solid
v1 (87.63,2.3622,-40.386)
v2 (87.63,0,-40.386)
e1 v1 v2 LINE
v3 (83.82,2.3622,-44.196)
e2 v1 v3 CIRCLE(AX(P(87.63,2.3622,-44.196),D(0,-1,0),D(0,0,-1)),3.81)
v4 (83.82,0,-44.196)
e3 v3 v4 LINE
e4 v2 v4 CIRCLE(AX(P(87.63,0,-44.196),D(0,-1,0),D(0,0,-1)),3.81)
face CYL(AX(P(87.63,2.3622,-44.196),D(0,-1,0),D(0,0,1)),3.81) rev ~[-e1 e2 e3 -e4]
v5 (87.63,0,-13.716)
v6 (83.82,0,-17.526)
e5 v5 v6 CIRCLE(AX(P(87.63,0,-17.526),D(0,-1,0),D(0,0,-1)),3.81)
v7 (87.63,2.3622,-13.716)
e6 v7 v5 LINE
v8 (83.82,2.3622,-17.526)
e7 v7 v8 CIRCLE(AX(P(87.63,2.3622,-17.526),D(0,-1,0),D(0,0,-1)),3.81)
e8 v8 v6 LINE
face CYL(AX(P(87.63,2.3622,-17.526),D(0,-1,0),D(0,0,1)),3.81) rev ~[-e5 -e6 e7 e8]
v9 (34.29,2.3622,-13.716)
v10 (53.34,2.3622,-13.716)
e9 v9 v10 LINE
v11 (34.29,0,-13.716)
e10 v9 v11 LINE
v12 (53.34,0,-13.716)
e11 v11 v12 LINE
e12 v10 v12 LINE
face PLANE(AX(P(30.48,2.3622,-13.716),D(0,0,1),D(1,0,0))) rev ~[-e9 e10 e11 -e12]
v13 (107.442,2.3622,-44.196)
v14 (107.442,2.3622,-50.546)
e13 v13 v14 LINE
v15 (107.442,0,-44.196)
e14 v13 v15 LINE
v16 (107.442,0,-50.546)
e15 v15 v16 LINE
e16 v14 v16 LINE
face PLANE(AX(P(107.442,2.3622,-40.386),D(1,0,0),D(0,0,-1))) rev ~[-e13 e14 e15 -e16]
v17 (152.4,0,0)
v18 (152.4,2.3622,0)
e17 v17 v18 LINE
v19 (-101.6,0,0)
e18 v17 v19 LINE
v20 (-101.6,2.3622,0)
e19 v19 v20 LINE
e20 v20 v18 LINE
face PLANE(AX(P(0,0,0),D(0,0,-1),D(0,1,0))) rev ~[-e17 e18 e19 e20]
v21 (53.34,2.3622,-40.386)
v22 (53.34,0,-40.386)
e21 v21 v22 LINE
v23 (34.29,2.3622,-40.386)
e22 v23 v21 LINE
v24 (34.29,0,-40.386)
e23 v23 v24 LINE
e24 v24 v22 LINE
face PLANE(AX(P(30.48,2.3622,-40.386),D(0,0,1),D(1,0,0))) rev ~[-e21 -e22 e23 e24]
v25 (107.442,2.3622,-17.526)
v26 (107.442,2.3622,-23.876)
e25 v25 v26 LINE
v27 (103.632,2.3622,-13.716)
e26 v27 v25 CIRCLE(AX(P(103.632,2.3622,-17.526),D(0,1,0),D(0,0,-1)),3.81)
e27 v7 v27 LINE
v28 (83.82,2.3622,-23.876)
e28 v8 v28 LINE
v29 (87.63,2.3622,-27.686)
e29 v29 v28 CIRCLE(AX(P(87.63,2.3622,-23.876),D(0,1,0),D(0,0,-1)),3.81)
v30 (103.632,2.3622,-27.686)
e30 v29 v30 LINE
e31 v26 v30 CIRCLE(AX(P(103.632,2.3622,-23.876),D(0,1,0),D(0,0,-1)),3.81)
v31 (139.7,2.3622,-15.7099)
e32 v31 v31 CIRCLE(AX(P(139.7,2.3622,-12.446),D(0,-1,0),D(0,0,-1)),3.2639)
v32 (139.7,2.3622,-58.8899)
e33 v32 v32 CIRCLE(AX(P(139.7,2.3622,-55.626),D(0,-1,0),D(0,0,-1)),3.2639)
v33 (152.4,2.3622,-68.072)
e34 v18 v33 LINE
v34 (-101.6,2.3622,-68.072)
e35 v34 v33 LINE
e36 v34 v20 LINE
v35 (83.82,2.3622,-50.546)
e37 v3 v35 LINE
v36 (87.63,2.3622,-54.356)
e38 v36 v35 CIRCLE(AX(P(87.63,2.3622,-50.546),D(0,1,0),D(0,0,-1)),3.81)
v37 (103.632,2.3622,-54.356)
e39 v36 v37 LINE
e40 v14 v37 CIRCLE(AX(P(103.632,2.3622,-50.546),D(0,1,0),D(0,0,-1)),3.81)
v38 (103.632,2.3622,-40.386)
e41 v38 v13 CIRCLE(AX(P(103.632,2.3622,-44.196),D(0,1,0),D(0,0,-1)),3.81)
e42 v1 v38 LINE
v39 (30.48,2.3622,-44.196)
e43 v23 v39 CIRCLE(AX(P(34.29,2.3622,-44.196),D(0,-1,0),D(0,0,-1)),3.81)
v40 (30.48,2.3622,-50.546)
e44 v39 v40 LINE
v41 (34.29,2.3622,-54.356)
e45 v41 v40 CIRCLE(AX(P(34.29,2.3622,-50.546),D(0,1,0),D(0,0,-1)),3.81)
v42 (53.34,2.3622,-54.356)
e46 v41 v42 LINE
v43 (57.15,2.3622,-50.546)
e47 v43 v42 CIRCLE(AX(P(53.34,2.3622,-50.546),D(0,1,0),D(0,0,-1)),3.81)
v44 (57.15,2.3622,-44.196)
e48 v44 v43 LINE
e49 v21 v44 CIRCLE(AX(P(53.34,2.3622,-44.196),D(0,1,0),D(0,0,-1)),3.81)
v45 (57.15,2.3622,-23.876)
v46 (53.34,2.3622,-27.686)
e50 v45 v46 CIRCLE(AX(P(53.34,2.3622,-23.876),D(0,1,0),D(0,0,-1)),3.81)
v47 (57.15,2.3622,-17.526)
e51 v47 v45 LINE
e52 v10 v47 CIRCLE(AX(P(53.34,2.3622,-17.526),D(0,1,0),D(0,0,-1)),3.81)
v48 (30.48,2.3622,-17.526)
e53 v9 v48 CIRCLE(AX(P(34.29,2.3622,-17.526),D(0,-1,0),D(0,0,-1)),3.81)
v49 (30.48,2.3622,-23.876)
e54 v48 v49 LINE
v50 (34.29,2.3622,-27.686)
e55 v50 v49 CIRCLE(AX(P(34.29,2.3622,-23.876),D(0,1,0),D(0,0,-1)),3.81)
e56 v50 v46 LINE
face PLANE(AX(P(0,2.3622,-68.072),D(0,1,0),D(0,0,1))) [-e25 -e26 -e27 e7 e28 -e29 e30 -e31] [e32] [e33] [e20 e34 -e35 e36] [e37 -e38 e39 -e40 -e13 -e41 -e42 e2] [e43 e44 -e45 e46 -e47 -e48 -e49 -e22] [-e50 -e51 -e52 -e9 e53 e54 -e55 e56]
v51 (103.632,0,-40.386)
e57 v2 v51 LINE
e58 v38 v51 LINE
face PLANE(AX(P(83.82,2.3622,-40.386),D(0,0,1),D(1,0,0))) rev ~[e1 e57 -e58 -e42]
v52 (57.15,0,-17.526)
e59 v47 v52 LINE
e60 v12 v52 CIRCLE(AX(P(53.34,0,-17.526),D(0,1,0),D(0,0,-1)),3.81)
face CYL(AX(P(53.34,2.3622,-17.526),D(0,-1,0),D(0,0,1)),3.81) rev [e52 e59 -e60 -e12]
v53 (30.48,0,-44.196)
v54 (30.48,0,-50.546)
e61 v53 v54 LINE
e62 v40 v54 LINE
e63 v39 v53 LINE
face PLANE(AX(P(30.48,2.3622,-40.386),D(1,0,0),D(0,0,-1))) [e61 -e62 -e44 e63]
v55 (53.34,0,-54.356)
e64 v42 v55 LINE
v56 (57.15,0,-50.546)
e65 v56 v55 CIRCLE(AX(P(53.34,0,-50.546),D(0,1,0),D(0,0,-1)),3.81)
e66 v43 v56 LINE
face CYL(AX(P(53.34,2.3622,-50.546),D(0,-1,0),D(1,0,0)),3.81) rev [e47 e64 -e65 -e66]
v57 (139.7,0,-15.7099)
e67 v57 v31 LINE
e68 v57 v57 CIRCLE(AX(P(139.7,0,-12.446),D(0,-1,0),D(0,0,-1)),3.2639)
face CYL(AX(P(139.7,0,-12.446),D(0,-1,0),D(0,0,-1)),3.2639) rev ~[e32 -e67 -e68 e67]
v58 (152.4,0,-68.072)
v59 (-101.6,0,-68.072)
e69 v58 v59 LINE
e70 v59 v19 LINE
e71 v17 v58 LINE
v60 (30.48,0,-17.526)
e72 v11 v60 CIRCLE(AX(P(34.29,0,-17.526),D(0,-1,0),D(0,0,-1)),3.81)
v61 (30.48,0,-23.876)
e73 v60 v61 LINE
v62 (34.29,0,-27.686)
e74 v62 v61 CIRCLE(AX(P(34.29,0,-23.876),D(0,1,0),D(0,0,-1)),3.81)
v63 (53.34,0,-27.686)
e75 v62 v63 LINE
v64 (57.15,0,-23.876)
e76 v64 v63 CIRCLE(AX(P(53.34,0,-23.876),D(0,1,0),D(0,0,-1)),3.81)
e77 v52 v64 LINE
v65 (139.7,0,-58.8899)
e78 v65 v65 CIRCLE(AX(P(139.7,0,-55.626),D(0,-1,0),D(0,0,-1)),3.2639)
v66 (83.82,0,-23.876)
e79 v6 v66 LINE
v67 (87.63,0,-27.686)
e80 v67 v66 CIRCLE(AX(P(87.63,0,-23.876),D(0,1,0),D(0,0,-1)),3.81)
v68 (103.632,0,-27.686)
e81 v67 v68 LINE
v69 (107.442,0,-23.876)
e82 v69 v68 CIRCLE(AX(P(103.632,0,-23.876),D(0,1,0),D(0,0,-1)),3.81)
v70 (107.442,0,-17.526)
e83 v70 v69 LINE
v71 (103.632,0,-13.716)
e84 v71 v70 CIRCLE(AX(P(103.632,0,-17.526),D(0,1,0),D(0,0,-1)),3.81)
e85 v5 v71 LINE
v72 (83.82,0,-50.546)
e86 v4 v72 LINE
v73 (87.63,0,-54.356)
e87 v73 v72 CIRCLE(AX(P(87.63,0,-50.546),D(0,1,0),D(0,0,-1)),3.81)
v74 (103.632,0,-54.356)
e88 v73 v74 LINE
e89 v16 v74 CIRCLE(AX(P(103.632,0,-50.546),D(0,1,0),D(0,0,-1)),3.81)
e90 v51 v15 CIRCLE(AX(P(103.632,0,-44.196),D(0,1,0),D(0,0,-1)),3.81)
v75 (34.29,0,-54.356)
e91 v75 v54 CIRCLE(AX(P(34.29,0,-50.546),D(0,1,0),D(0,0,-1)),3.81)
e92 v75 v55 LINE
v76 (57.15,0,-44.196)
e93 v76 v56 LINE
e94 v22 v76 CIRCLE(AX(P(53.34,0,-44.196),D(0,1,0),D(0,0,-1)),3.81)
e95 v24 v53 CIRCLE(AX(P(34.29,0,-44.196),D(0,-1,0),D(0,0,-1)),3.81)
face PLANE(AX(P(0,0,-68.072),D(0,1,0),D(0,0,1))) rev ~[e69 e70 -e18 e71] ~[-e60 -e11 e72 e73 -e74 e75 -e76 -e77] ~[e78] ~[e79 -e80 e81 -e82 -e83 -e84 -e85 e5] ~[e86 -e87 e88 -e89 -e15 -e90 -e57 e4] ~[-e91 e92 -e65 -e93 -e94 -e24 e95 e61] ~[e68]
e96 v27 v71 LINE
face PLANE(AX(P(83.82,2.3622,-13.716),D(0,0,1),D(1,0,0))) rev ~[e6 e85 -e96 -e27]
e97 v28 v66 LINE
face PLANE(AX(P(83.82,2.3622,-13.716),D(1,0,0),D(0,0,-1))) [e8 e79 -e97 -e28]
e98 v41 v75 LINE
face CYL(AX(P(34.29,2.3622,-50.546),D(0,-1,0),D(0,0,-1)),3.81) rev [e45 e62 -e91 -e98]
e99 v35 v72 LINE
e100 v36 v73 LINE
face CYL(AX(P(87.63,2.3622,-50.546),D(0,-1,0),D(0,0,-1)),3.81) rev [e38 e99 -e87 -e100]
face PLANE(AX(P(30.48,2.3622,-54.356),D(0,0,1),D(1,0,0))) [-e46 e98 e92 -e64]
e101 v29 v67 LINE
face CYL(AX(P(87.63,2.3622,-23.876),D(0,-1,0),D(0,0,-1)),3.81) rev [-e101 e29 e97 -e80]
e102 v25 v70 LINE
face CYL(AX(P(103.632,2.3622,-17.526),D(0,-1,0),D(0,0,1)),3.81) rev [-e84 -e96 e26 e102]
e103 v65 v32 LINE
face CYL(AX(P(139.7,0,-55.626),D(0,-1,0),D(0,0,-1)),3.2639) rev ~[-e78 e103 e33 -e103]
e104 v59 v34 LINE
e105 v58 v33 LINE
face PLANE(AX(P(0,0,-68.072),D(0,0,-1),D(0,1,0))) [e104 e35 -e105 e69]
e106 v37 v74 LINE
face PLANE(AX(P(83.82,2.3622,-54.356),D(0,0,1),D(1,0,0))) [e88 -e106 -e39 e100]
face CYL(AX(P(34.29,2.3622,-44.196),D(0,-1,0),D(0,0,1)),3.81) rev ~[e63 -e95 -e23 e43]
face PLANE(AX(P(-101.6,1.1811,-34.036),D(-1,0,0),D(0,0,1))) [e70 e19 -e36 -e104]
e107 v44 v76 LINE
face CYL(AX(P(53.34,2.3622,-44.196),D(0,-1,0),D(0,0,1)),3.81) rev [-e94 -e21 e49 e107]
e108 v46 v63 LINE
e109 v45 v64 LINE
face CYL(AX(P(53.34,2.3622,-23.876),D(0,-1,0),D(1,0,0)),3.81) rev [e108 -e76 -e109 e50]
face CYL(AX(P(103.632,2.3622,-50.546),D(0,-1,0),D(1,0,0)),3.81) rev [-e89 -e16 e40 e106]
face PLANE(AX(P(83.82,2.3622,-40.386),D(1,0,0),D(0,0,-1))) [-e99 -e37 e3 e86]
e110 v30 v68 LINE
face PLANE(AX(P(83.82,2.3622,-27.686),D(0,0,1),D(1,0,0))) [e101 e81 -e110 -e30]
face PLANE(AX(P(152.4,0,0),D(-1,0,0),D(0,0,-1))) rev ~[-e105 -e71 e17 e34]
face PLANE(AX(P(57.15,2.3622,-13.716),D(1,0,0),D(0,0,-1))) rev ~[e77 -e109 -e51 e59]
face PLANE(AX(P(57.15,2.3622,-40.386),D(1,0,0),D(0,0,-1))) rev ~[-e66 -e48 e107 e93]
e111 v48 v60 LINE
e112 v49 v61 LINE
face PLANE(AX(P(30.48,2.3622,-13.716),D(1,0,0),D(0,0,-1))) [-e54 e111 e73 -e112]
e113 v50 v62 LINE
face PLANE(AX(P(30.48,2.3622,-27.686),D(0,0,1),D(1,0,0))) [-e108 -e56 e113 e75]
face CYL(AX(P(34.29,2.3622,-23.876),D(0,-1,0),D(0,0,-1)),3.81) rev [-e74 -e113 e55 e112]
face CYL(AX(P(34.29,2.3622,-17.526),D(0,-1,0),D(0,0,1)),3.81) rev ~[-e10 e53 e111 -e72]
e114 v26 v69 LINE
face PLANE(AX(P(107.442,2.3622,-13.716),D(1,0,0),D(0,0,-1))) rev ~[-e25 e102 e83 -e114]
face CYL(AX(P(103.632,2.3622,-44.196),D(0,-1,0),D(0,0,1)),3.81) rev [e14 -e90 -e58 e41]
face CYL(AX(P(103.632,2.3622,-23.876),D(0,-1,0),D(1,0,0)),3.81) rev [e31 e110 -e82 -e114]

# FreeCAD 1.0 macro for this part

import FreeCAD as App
import Part
import Sketcher
Q = App.Units.Quantity


def edges_at(feature, points):
    """Names of the edges that pass closest to the given points."""
    edges = feature.Shape.Edges
    near = lambda p: min(range(len(edges)), key=lambda i: edges[i].distToShape(Part.Vertex(*p))[0])
    return sorted({f"Edge{near(p) + 1}" for p in points})

doc = App.newDocument("Part")
params = doc.addObject("Spreadsheet::Sheet", "Params")
for row, (alias, value) in enumerate([
    ("sketch1_width", "6 in"),
    ("sketch1_height", "2.68 in"),
    ("pad1_length", "0.093 in"),
    ("sketch2_width", "1.05 in"),
    ("sketch2_width2", "0.93 in"),
    ("sketch2_height", "0.55 in"),
    ("fillet_radius", "0.15 in"),
    ("sketch3_height", "2.68 in"),
    ("sketch3_width", "0.093 in"),
    ("pad2_length", "4 in"),
    ("sketch4_diameter", "0.257 in"),
], start=1):
    params.set(f"A{row}", alias)
    params.set(f"B{row}", "=" + value)
    params.setAlias(f"B{row}", alias)

body = doc.addObject("PartDesign::Body", "Body")

# Sketch on XZ plane
sketch1 = body.newObject("Sketcher::SketchObject", "Sketch")
sketch1.AttachmentSupport = (doc.getObject("XZ_Plane"), [""])
sketch1.MapMode = "FlatFace"
sketch1.addGeometry(Part.LineSegment(App.Vector(0, -68, 0), App.Vector(0, 0, 0)), False)
sketch1.addGeometry(Part.LineSegment(App.Vector(0, 0, 0), App.Vector(152, 0, 0)), False)
sketch1.addGeometry(Part.LineSegment(App.Vector(152, 0, 0), App.Vector(152, -68, 0)), False)
sketch1.addGeometry(Part.LineSegment(App.Vector(152, -68, 0), App.Vector(0, -68, 0)), False)
sketch1.addConstraint(Sketcher.Constraint("Coincident", 0, 2, 1, 1))
sketch1.addConstraint(Sketcher.Constraint("Coincident", 1, 2, 2, 1))
sketch1.addConstraint(Sketcher.Constraint("Coincident", 2, 2, 3, 1))
sketch1.addConstraint(Sketcher.Constraint("Coincident", 3, 2, 0, 1))
sketch1.addConstraint(Sketcher.Constraint("Vertical", 0))
sketch1.addConstraint(Sketcher.Constraint("Horizontal", 1))
sketch1.addConstraint(Sketcher.Constraint("Vertical", 2))
sketch1.addConstraint(Sketcher.Constraint("Horizontal", 3))
sketch1.addConstraint(Sketcher.Constraint("Coincident", 0, 2, -1, 1))
sketch1.addConstraint(Sketcher.Constraint("DistanceX", 1, 1, 1, 2, Q("6 in")))
sketch1.addConstraint(Sketcher.Constraint("DistanceY", 0, 1, 0, 2, Q("2.68 in")))
sketch1.setExpression("Constraints[9]", "Params.sketch1_width")
sketch1.setExpression("Constraints[10]", "Params.sketch1_height")
pad1 = body.newObject("PartDesign::Pad", "Pad")
pad1.Profile = sketch1
pad1.setExpression("Length", "Params.pad1_length")
pad1.Reversed = True

# Sketch on XZ plane
sketch2 = body.newObject("Sketcher::SketchObject", "Sketch001")
sketch2.AttachmentSupport = (doc.getObject("XZ_Plane"), [""])
sketch2.MapMode = "FlatFace"
sketch2.AttachmentOffset = App.Placement(App.Vector(0, 0, -0.093 * 25.4), App.Rotation())
sketch2.addGeometry(Part.LineSegment(App.Vector(30, -54, 0), App.Vector(30, -40, 0)), False)
sketch2.addGeometry(Part.LineSegment(App.Vector(30, -40, 0), App.Vector(57, -40, 0)), False)
sketch2.addGeometry(Part.LineSegment(App.Vector(57, -40, 0), App.Vector(57, -54, 0)), False)
sketch2.addGeometry(Part.LineSegment(App.Vector(57, -54, 0), App.Vector(30, -54, 0)), False)
sketch2.addGeometry(Part.LineSegment(App.Vector(84, -54, 0), App.Vector(84, -40, 0)), False)
sketch2.addGeometry(Part.LineSegment(App.Vector(84, -40, 0), App.Vector(107, -40, 0)), False)
sketch2.addGeometry(Part.LineSegment(App.Vector(107, -40, 0), App.Vector(107, -54, 0)), False)
sketch2.addGeometry(Part.LineSegment(App.Vector(107, -54, 0), App.Vector(84, -54, 0)), False)
sketch2.addGeometry(Part.LineSegment(App.Vector(30, -28, 0), App.Vector(30, -14, 0)), False)
sketch2.addGeometry(Part.LineSegment(App.Vector(30, -14, 0), App.Vector(57, -14, 0)), False)
sketch2.addGeometry(Part.LineSegment(App.Vector(57, -14, 0), App.Vector(57, -28, 0)), False)
sketch2.addGeometry(Part.LineSegment(App.Vector(57, -28, 0), App.Vector(30, -28, 0)), False)
sketch2.addGeometry(Part.LineSegment(App.Vector(84, -28, 0), App.Vector(84, -14, 0)), False)
sketch2.addGeometry(Part.LineSegment(App.Vector(84, -14, 0), App.Vector(107, -14, 0)), False)
sketch2.addGeometry(Part.LineSegment(App.Vector(107, -14, 0), App.Vector(107, -28, 0)), False)
sketch2.addGeometry(Part.LineSegment(App.Vector(107, -28, 0), App.Vector(84, -28, 0)), False)
sketch2.addConstraint(Sketcher.Constraint("Coincident", 0, 2, 1, 1))
sketch2.addConstraint(Sketcher.Constraint("Coincident", 1, 2, 2, 1))
sketch2.addConstraint(Sketcher.Constraint("Coincident", 2, 2, 3, 1))
sketch2.addConstraint(Sketcher.Constraint("Coincident", 3, 2, 0, 1))
sketch2.addConstraint(Sketcher.Constraint("Coincident", 4, 2, 5, 1))
sketch2.addConstraint(Sketcher.Constraint("Coincident", 5, 2, 6, 1))
sketch2.addConstraint(Sketcher.Constraint("Coincident", 6, 2, 7, 1))
sketch2.addConstraint(Sketcher.Constraint("Coincident", 7, 2, 4, 1))
sketch2.addConstraint(Sketcher.Constraint("Coincident", 8, 2, 9, 1))
sketch2.addConstraint(Sketcher.Constraint("Coincident", 9, 2, 10, 1))
sketch2.addConstraint(Sketcher.Constraint("Coincident", 10, 2, 11, 1))
sketch2.addConstraint(Sketcher.Constraint("Coincident", 11, 2, 8, 1))
sketch2.addConstraint(Sketcher.Constraint("Coincident", 12, 2, 13, 1))
sketch2.addConstraint(Sketcher.Constraint("Coincident", 13, 2, 14, 1))
sketch2.addConstraint(Sketcher.Constraint("Coincident", 14, 2, 15, 1))
sketch2.addConstraint(Sketcher.Constraint("Coincident", 15, 2, 12, 1))
sketch2.addConstraint(Sketcher.Constraint("Vertical", 0))
sketch2.addConstraint(Sketcher.Constraint("Horizontal", 1))
sketch2.addConstraint(Sketcher.Constraint("Vertical", 2))
sketch2.addConstraint(Sketcher.Constraint("Horizontal", 3))
sketch2.addConstraint(Sketcher.Constraint("Vertical", 4))
sketch2.addConstraint(Sketcher.Constraint("Horizontal", 5))
sketch2.addConstraint(Sketcher.Constraint("Vertical", 6))
sketch2.addConstraint(Sketcher.Constraint("Horizontal", 7))
sketch2.addConstraint(Sketcher.Constraint("Vertical", 8))
sketch2.addConstraint(Sketcher.Constraint("Horizontal", 9))
sketch2.addConstraint(Sketcher.Constraint("Vertical", 10))
sketch2.addConstraint(Sketcher.Constraint("Horizontal", 11))
sketch2.addConstraint(Sketcher.Constraint("Vertical", 12))
sketch2.addConstraint(Sketcher.Constraint("Horizontal", 13))
sketch2.addConstraint(Sketcher.Constraint("Vertical", 14))
sketch2.addConstraint(Sketcher.Constraint("Horizontal", 15))
sketch2.addConstraint(Sketcher.Constraint("Horizontal", 1, 2, 4, 2))
sketch2.addConstraint(Sketcher.Constraint("Horizontal", 3, 2, 6, 2))
sketch2.addConstraint(Sketcher.Constraint("Horizontal", 9, 2, 12, 2))
sketch2.addConstraint(Sketcher.Constraint("Horizontal", 11, 2, 14, 2))
sketch2.addConstraint(Sketcher.Constraint("Vertical", 3, 2, 8, 2))
sketch2.addConstraint(Sketcher.Constraint("Vertical", 2, 2, 9, 2))
sketch2.addConstraint(Sketcher.Constraint("Vertical", 7, 2, 12, 2))
sketch2.addConstraint(Sketcher.Constraint("Vertical", 6, 2, 13, 2))
sketch2.addConstraint(Sketcher.Constraint("Equal", 6, 8))
sketch2.addConstraint(Sketcher.Constraint("DistanceX", 1, 1, 1, 2, Q("1.05 in")))
sketch2.addConstraint(Sketcher.Constraint("DistanceX", 5, 1, 5, 2, Q("0.93 in")))
sketch2.addConstraint(Sketcher.Constraint("DistanceY", 0, 1, 0, 2, Q("0.55 in")))
sketch2.addConstraint(Sketcher.Constraint("DistanceX", -1, 1, 0, 2, Q("1.2 in")))
sketch2.addConstraint(Sketcher.Constraint("DistanceX", -1, 1, 4, 2, Q("3.3 in")))
sketch2.addConstraint(Sketcher.Constraint("DistanceY", 3, 2, 8, 2, Q("1.6 in")))
sketch2.addConstraint(Sketcher.Constraint("DistanceY", 0, 2, -1, 1, Q("1.59 in")))
sketch2.setExpression("Constraints[41]", "Params.sketch2_width")
sketch2.setExpression("Constraints[42]", "Params.sketch2_width2")
sketch2.setExpression("Constraints[43]", "Params.sketch2_height")
pocket1 = body.newObject("PartDesign::Pocket", "Pocket")
pocket1.Profile = sketch2
pocket1.Type = "ThroughAll"
pocket1.Reversed = True
doc.recompute()

fillet = body.newObject("PartDesign::Fillet", "Fillet")
fillet.Base = (pocket1, edges_at(pocket1, [
    (83.82, 1.181, -40.386),
    (83.82, 1.181, -54.356),
    (107.442, 1.181, -54.356),
    (107.442, 1.181, -40.386),
    (30.48, 1.181, -13.716),
    (30.48, 1.181, -27.686),
    (57.15, 1.181, -27.686),
    (57.15, 1.181, -13.716),
    (83.82, 1.181, -13.716),
    (83.82, 1.181, -27.686),
    (107.442, 1.181, -27.686),
    (107.442, 1.181, -13.716),
    (30.48, 1.181, -40.386),
    (30.48, 1.181, -54.356),
    (57.15, 1.181, -54.356),
    (57.15, 1.181, -40.386),
]))
fillet.setExpression("Radius", "Params.fillet_radius")

# Sketch on YZ plane
sketch3 = body.newObject("Sketcher::SketchObject", "Sketch002")
sketch3.AttachmentSupport = (doc.getObject("YZ_Plane"), [""])
sketch3.MapMode = "FlatFace"
sketch3.addGeometry(Part.LineSegment(App.Vector(2.4, -68.1, 0), App.Vector(0, -68.1, 0)), False)
sketch3.addGeometry(Part.LineSegment(App.Vector(0, -68.1, 0), App.Vector(0, 0, 0)), False)
sketch3.addGeometry(Part.LineSegment(App.Vector(0, 0, 0), App.Vector(2.4, 0, 0)), False)
sketch3.addGeometry(Part.LineSegment(App.Vector(2.4, 0, 0), App.Vector(2.4, -68.1, 0)), False)
sketch3.addConstraint(Sketcher.Constraint("Coincident", 0, 2, 1, 1))
sketch3.addConstraint(Sketcher.Constraint("Coincident", 1, 2, 2, 1))
sketch3.addConstraint(Sketcher.Constraint("Coincident", 2, 2, 3, 1))
sketch3.addConstraint(Sketcher.Constraint("Coincident", 3, 2, 0, 1))
sketch3.addConstraint(Sketcher.Constraint("Horizontal", 0))
sketch3.addConstraint(Sketcher.Constraint("Vertical", 1))
sketch3.addConstraint(Sketcher.Constraint("Horizontal", 2))
sketch3.addConstraint(Sketcher.Constraint("Vertical", 3))
sketch3.addConstraint(Sketcher.Constraint("Coincident", 1, 2, -1, 1))
sketch3.addConstraint(Sketcher.Constraint("DistanceY", 1, 1, 1, 2, Q("2.68 in")))
sketch3.addConstraint(Sketcher.Constraint("DistanceX", 0, 2, 0, 1, Q("0.093 in")))
sketch3.setExpression("Constraints[9]", "Params.sketch3_height")
sketch3.setExpression("Constraints[10]", "Params.sketch3_width")
pad2 = body.newObject("PartDesign::Pad", "Pad001")
pad2.Profile = sketch3
pad2.setExpression("Length", "Params.pad2_length")
pad2.Reversed = True

# Sketch on XZ plane
sketch4 = body.newObject("Sketcher::SketchObject", "Sketch003")
sketch4.AttachmentSupport = (doc.getObject("XZ_Plane"), [""])
sketch4.MapMode = "FlatFace"
sketch4.addGeometry(Part.Circle(App.Vector(139.7, -12.4, 0), App.Vector(0, 0, 1), 3.3), False)
sketch4.addGeometry(Part.Circle(App.Vector(139.7, -55.6, 0), App.Vector(0, 0, 1), 3.3), False)
sketch4.addConstraint(Sketcher.Constraint("Equal", 0, 1))
sketch4.addConstraint(Sketcher.Constraint("Vertical", 0, 3, 1, 3))
sketch4.addConstraint(Sketcher.Constraint("Diameter", 0, Q("0.257 in")))
sketch4.addConstraint(Sketcher.Constraint("DistanceX", -1, 1, 0, 3, Q("5.5 in")))
sketch4.addConstraint(Sketcher.Constraint("DistanceY", 1, 3, 0, 3, Q("1.7 in")))
sketch4.addConstraint(Sketcher.Constraint("DistanceY", 0, 3, -1, 1, Q("0.49 in")))
sketch4.setExpression("Constraints[2]", "Params.sketch4_diameter")
pocket2 = body.newObject("PartDesign::Pocket", "Pocket001")
pocket2.Profile = sketch4
pocket2.Type = "ThroughAll"

doc.recompute()
